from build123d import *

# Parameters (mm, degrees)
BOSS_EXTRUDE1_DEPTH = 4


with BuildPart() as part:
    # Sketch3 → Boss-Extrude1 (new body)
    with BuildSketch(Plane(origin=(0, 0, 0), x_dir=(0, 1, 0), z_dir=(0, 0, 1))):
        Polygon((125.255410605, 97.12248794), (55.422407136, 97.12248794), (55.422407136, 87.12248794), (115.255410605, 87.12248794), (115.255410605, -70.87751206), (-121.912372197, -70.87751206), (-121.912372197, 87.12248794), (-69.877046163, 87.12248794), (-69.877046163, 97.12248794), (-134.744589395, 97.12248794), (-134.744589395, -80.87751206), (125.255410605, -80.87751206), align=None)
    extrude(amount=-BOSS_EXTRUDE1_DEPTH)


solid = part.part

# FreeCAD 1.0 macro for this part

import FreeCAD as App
import Part
import Sketcher

V = App.Vector

doc = App.newDocument("Part")
body = doc.addObject("PartDesign::Body", "Body")

# Sketch on XY plane
sketch1 = doc.addObject("Sketcher::SketchObject", "Sketch")
body.addObject(sketch1)
sketch1.AttachmentSupport = (doc.XY_Plane, [""])
sketch1.MapMode = "FlatFace"
sketch1.addGeometry([
    Part.LineSegment(V(-97, 125, 0), V(-97, 55, 0)),  # 0
    Part.LineSegment(V(-97, 55, 0), V(-87, 55, 0)),  # 1
    Part.LineSegment(V(-87, 55, 0), V(-87, 115, 0)),  # 2
    Part.LineSegment(V(-87, 115, 0), V(71, 115, 0)),  # 3
    Part.LineSegment(V(71, 115, 0), V(71, -122, 0)),  # 4
    Part.LineSegment(V(71, -122, 0), V(-87, -122, 0)),  # 5
    Part.LineSegment(V(-87, -122, 0), V(-87, -70, 0)),  # 6
    Part.LineSegment(V(-87, -70, 0), V(-97, -70, 0)),  # 7
    Part.LineSegment(V(-97, -70, 0), V(-97, -135, 0)),  # 8
    Part.LineSegment(V(-97, -135, 0), V(81, -135, 0)),  # 9
    Part.LineSegment(V(81, -135, 0), V(81, 125, 0)),  # 10
    Part.LineSegment(V(81, 125, 0), V(-97, 125, 0)),  # 11
], False)
sketch1.addConstraint([
    Sketcher.Constraint("Coincident", 0, 2, 1, 1),
    Sketcher.Constraint("Coincident", 1, 2, 2, 1),
    Sketcher.Constraint("Coincident", 2, 2, 3, 1),
    Sketcher.Constraint("Coincident", 3, 2, 4, 1),
    Sketcher.Constraint("Coincident", 4, 2, 5, 1),
    Sketcher.Constraint("Coincident", 5, 2, 6, 1),
    Sketcher.Constraint("Coincident", 6, 2, 7, 1),
    Sketcher.Constraint("Coincident", 7, 2, 8, 1),
    Sketcher.Constraint("Coincident", 8, 2, 9, 1),
    Sketcher.Constraint("Coincident", 9, 2, 10, 1),
    Sketcher.Constraint("Coincident", 10, 2, 11, 1),
    Sketcher.Constraint("Coincident", 11, 2, 0, 1),
    Sketcher.Constraint("Vertical", 0),
    Sketcher.Constraint("Horizontal", 1),
    Sketcher.Constraint("Vertical", 2),
    Sketcher.Constraint("Horizontal", 3),
    Sketcher.Constraint("Vertical", 4),
    Sketcher.Constraint("Horizontal", 5),
    Sketcher.Constraint("Vertical", 6),
    Sketcher.Constraint("Horizontal", 7),
    Sketcher.Constraint("Vertical", 8),
    Sketcher.Constraint("Horizontal", 9),
    Sketcher.Constraint("Vertical", 10),
    Sketcher.Constraint("Horizontal", 11),
    Sketcher.Constraint("Vertical", 2, 2, 5, 2),
    Sketcher.Constraint("Vertical", 0, 2, 7, 2),
    Sketcher.Constraint("DistanceX", 1, 1, 1, 2, 10.0),
    Sketcher.Constraint("DistanceX", 3, 1, 3, 2, 158.0),
    Sketcher.Constraint("DistanceX", 9, 1, 9, 2, 178.0),
    Sketcher.Constraint("DistanceY", 10, 1, 10, 2, 260.0),
    Sketcher.Constraint("DistanceY", 3, 2, 10, 2, 10.0),
    Sketcher.Constraint("DistanceY", 0, 2, 0, 1, 69.833003),
    Sketcher.Constraint("DistanceY", 4, 2, 4, 1, 237.167783),
    Sketcher.Constraint("DistanceY", 6, 1, 6, 2, 52.035326),
    Sketcher.Constraint("DistanceY", -1, 1, 2, 2, 115.255411),
    Sketcher.Constraint("DistanceX", 0, 2, -1, 1, 97.122488),
])
pad1 = doc.addObject("PartDesign::Pad", "Pad")
body.addObject(pad1)
pad1.Profile = sketch1
pad1.Length = 4
pad1.Reversed = True

doc.recompute()
